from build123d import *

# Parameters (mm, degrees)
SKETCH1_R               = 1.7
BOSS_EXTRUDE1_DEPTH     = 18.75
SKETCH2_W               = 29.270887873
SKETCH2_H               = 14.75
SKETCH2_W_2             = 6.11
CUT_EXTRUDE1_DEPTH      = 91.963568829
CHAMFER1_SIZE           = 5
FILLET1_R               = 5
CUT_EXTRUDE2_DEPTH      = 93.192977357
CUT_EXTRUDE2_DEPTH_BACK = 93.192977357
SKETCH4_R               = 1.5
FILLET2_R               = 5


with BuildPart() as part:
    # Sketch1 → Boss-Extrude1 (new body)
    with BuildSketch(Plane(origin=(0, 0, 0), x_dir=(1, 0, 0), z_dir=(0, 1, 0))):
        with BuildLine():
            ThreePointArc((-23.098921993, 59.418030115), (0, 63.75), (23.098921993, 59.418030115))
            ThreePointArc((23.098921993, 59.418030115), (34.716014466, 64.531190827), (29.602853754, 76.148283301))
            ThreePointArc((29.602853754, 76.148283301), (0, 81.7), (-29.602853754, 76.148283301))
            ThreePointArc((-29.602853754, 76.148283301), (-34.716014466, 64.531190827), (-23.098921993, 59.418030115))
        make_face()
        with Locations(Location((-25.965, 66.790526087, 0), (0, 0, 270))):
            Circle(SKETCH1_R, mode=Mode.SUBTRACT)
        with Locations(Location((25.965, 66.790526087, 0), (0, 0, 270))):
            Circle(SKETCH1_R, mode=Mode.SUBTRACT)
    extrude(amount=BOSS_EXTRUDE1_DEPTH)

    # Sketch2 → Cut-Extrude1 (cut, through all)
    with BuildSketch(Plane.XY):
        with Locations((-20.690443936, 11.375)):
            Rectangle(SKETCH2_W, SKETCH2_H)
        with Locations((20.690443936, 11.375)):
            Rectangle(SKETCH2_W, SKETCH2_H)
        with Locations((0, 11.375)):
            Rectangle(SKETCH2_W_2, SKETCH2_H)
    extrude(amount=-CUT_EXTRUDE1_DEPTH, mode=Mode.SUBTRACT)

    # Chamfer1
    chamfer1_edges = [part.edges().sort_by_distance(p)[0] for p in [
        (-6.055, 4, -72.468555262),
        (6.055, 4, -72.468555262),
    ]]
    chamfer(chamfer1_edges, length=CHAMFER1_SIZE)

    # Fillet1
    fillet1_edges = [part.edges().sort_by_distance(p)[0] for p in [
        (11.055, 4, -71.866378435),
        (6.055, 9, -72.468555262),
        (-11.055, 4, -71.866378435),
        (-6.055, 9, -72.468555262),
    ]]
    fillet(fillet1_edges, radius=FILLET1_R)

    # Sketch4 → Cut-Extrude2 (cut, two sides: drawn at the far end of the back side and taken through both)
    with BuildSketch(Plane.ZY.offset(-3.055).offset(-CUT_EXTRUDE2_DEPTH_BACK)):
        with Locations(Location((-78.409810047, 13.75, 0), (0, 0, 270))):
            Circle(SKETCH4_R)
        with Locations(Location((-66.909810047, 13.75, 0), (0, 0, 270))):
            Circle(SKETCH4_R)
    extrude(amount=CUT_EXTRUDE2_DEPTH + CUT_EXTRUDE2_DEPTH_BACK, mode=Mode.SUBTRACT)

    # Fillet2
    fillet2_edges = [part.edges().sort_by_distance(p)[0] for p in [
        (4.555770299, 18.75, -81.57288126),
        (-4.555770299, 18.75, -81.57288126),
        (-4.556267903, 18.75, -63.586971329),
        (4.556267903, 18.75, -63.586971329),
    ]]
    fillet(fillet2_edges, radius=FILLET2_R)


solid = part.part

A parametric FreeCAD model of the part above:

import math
import FreeCAD as App
import Part
import Sketcher


def edges_at(feature, points):
    """Names of the edges that pass closest to the given points."""
    edges = feature.Shape.Edges
    near = lambda p: min(range(len(edges)), key=lambda i: edges[i].distToShape(Part.Vertex(*p))[0])
    return sorted({f"Edge{near(p) + 1}" for p in points})

doc = App.newDocument("Part")
params = doc.addObject("Spreadsheet::Sheet", "Params")
for row, (alias, value) in enumerate([
    ("sketch1_diameter", "3.4 mm"),
    ("sketch1_radius", "81.7 mm"),
    ("sketch1_radius2", "63.75 mm"),
    ("pad1_length", "18.75 mm"),
    ("sketch2_width", "6.11 mm"),
    ("sketch2_height", "14.75 mm"),
    ("chamfer_size", "5 mm"),
    ("fillet_radius", "5 mm"),
    ("sketch3_diameter", "3 mm"),
    ("fillet2_radius", "5 mm"),
], start=1):
    params.set(f"A{row}", alias)
    params.set(f"B{row}", "=" + value)
    params.setAlias(f"B{row}", alias)

body = doc.addObject("PartDesign::Body", "Body")

# Sketch on XZ plane
sketch1 = body.newObject("Sketcher::SketchObject", "Sketch")
sketch1.AttachmentSupport = (doc.getObject("XZ_Plane"), [""])
sketch1.MapMode = "FlatFace"
sketch1.addGeometry([
    Part.ArcOfCircle(Part.Circle(App.Vector(0, 0, 0), App.Vector(0, 0, 1), 63.75), math.radians(-111.243729), math.radians(-68.756271)),  # 0
    Part.ArcOfCircle(Part.Circle(App.Vector(26.350888, -67.783157, 0), App.Vector(0, 0, 1), 8.975), math.radians(-68.756271), math.radians(111.243729)),  # 1
    Part.ArcOfCircle(Part.Circle(App.Vector(0, 0, 0), App.Vector(0, 0, 1), 81.7), math.radians(-111.243729), math.radians(-68.756271)),  # 2
    Part.ArcOfCircle(Part.Circle(App.Vector(-26.350888, -67.783157, 0), App.Vector(0, 0, 1), 8.975), math.radians(68.756271), math.radians(248.756271)),  # 3
    Part.Circle(App.Vector(-25.965, -66.790526, 0), App.Vector(0, 0, 1), 1.7),  # 4
    Part.Circle(App.Vector(25.965, -66.790526, 0), App.Vector(0, 0, 1), 1.7),  # 5
], False)
sketch1.addConstraint([
    Sketcher.Constraint("Tangent", 0, 2, 1, 2),
    Sketcher.Constraint("Tangent", 1, 1, 2, 2),
    Sketcher.Constraint("Tangent", 2, 1, 3, 2),
    Sketcher.Constraint("Tangent", 3, 1, 0, 1),
    Sketcher.Constraint("Coincident", 0, 3, -1, 1),
    Sketcher.Constraint("Coincident", 2, 3, -1, 1),
    Sketcher.Constraint("Equal", 4, 5),
    Sketcher.Constraint("Symmetric", 4, 3, 5, 3, -2),
    Sketcher.Constraint("Horizontal", 1, 3, 3, 3),
    Sketcher.Constraint("Diameter", 4, 3.4),
    Sketcher.Constraint("Radius", 2, 81.7),
    Sketcher.Constraint("Radius", 0, 63.75),
    Sketcher.Constraint("DistanceX", 4, 3, 5, 3, 51.93),
    Sketcher.Constraint("DistanceX", -1, 1, 0, 2, 23.098922),
    Sketcher.Constraint("DistanceY", 3, 3, 4, 3, 0.992631),
])
sketch1.setExpression("Constraints[9]", "Params.sketch1_diameter")
sketch1.setExpression("Constraints[10]", "Params.sketch1_radius")
sketch1.setExpression("Constraints[11]", "Params.sketch1_radius2")
pad1 = body.newObject("PartDesign::Pad", "Pad")
pad1.Profile = sketch1
pad1.setExpression("Length", "Params.pad1_length")
pad1.Reversed = True

# Sketch on XY plane
sketch2 = body.newObject("Sketcher::SketchObject", "Sketch001")
sketch2.AttachmentSupport = (doc.getObject("XY_Plane"), [""])
sketch2.MapMode = "FlatFace"
sketch2.addGeometry([
    Part.LineSegment(App.Vector(-35.325888, 18.75, 0), App.Vector(-35.325888, 4, 0)),  # 0
    Part.LineSegment(App.Vector(-35.325888, 4, 0), App.Vector(-6.055, 4, 0)),  # 1
    Part.LineSegment(App.Vector(-6.055, 4, 0), App.Vector(-6.055, 18.75, 0)),  # 2
    Part.LineSegment(App.Vector(-6.055, 18.75, 0), App.Vector(-35.325888, 18.75, 0)),  # 3
    Part.LineSegment(App.Vector(6.055, 18.75, 0), App.Vector(6.055, 4, 0)),  # 4
    Part.LineSegment(App.Vector(6.055, 4, 0), App.Vector(35.325888, 4, 0)),  # 5
    Part.LineSegment(App.Vector(35.325888, 4, 0), App.Vector(35.325888, 18.75, 0)),  # 6
    Part.LineSegment(App.Vector(35.325888, 18.75, 0), App.Vector(6.055, 18.75, 0)),  # 7
    Part.LineSegment(App.Vector(-3.055, 18.75, 0), App.Vector(-3.055, 4, 0)),  # 8
    Part.LineSegment(App.Vector(-3.055, 4, 0), App.Vector(3.055, 4, 0)),  # 9
    Part.LineSegment(App.Vector(3.055, 4, 0), App.Vector(3.055, 18.75, 0)),  # 10
    Part.LineSegment(App.Vector(3.055, 18.75, 0), App.Vector(-3.055, 18.75, 0)),  # 11
], False)
sketch2.addConstraint([
    Sketcher.Constraint("Coincident", 0, 2, 1, 1),
    Sketcher.Constraint("Coincident", 1, 2, 2, 1),
    Sketcher.Constraint("Coincident", 2, 2, 3, 1),
    Sketcher.Constraint("Coincident", 3, 2, 0, 1),
    Sketcher.Constraint("Coincident", 4, 2, 5, 1),
    Sketcher.Constraint("Coincident", 5, 2, 6, 1),
    Sketcher.Constraint("Coincident", 6, 2, 7, 1),
    Sketcher.Constraint("Coincident", 7, 2, 4, 1),
    Sketcher.Constraint("Coincident", 8, 2, 9, 1),
    Sketcher.Constraint("Coincident", 9, 2, 10, 1),
    Sketcher.Constraint("Coincident", 10, 2, 11, 1),
    Sketcher.Constraint("Coincident", 11, 2, 8, 1),
    Sketcher.Constraint("Vertical", 0),
    Sketcher.Constraint("Horizontal", 1),
    Sketcher.Constraint("Vertical", 2),
    Sketcher.Constraint("Horizontal", 3),
    Sketcher.Constraint("Vertical", 4),
    Sketcher.Constraint("Horizontal", 5),
    Sketcher.Constraint("Vertical", 6),
    Sketcher.Constraint("Horizontal", 7),
    Sketcher.Constraint("Vertical", 8),
    Sketcher.Constraint("Horizontal", 9),
    Sketcher.Constraint("Vertical", 10),
    Sketcher.Constraint("Horizontal", 11),
    Sketcher.Constraint("Symmetric", 1, 2, 4, 2, -2),
    Sketcher.Constraint("Symmetric", 3, 2, 6, 2, -2),
    Sketcher.Constraint("Horizontal", 5, 2, 8, 2),
    Sketcher.Constraint("Horizontal", 7, 2, 10, 2),
    Sketcher.Constraint("DistanceY", -1, 1, 0, 2, 4.0),
    Sketcher.Constraint("DistanceX", 1, 2, 8, 2, 3.0),
    Sketcher.Constraint("DistanceX", 9, 2, 4, 2, 3.0),
    Sketcher.Constraint("DistanceX", 9, 1, 9, 2, 6.11),
    Sketcher.Constraint("DistanceY", 0, 2, 0, 1, 14.75),
    Sketcher.Constraint("DistanceX", 1, 1, 1, 2, 29.270888),
])
sketch2.setExpression("Constraints[31]", "Params.sketch2_width")
sketch2.setExpression("Constraints[32]", "Params.sketch2_height")
pocket1 = body.newObject("PartDesign::Pocket", "Pocket")
pocket1.Profile = sketch2
pocket1.Type = "ThroughAll"
doc.recompute()

chamfer = body.newObject("PartDesign::Chamfer", "Chamfer")
chamfer.Base = (pocket1, edges_at(pocket1, [(-6.055, 4, -72.469), (6.055, 4, -72.469)]))
chamfer.setExpression("Size", "Params.chamfer_size")
doc.recompute()

fillet = body.newObject("PartDesign::Fillet", "Fillet")
fillet.Base = (chamfer, edges_at(chamfer, [
    (11.055, 4, -71.866),
    (6.055, 9, -72.469),
    (-11.055, 4, -71.866),
    (-6.055, 9, -72.469),
]))
fillet.setExpression("Radius", "Params.fillet_radius")

# Sketch on YZ plane
sketch3 = body.newObject("Sketcher::SketchObject", "Sketch002")
sketch3.AttachmentSupport = (doc.getObject("YZ_Plane"), [""])
sketch3.MapMode = "FlatFace"
sketch3.AttachmentOffset = App.Placement(App.Vector(0, 0, 3.055), App.Rotation())
sketch3.addGeometry([
    Part.Circle(App.Vector(13.75, -78.40981, 0), App.Vector(0, 0, 1), 1.5),
    Part.Circle(App.Vector(13.75, -66.90981, 0), App.Vector(0, 0, 1), 1.5),
], False)
sketch3.addConstraint([
    Sketcher.Constraint("Equal", 0, 1),
    Sketcher.Constraint("Vertical", 0, 3, 1, 3),
    Sketcher.Constraint("Diameter", 0, 3.0),
    Sketcher.Constraint("DistanceY", 0, 3, 1, 3, 11.5),
    Sketcher.Constraint("DistanceX", -1, 1, 0, 3, 13.75),
    Sketcher.Constraint("DistanceY", 0, 3, -1, 1, 78.40981),
])
sketch3.setExpression("Constraints[2]", "Params.sketch3_diameter")
pocket2 = body.newObject("PartDesign::Pocket", "Pocket001")
pocket2.Profile = sketch3
pocket2.Type = "ThroughAll"
pocket2.Midplane = True
doc.recompute()

fillet2 = body.newObject("PartDesign::Fillet", "Fillet001")
fillet2.Base = (pocket2, edges_at(pocket2, [
    (4.556, 18.75, -81.573),
    (-4.556, 18.75, -81.573),
    (-4.556, 18.75, -63.587),
    (4.556, 18.75, -63.587),
]))
fillet2.setExpression("Radius", "Params.fillet2_radius")

doc.recompute()
